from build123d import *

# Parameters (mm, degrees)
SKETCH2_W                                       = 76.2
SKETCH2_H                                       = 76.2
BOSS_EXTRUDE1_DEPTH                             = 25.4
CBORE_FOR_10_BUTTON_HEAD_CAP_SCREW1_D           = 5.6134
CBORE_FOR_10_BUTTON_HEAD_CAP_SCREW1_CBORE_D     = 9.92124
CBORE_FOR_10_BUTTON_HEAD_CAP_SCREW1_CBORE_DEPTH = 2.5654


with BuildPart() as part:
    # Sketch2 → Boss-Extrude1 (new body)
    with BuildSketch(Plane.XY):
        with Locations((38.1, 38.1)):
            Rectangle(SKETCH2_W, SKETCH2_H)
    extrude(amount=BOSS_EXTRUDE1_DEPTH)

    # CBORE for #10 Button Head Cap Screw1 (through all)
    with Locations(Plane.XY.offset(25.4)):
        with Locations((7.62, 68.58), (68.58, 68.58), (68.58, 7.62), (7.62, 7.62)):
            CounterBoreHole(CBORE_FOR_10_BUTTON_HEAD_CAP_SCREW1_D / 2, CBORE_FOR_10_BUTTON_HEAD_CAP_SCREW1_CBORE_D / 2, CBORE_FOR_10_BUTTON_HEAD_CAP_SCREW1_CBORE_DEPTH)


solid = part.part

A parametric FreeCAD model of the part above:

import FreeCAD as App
import Part
import Sketcher
from FreeCAD import Vector
Q = App.Units.Quantity

doc = App.newDocument("Part")
params = doc.addObject("Spreadsheet::Sheet", "Params")
for row, (alias, value) in enumerate([
    ("sketch1_width", "3 in"),
    ("pad1_length", "1 in"),
    ("sketch2_diameter", "0.221 in"),
    ("hole_diameter", "0.221 in"),
    ("hole_cbore_diameter", "0.3906 in"),
    ("hole_cbore_depth", "0.101 in"),
], start=1):
    params.set(f"A{row}", alias)
    params.set(f"B{row}", "=" + value)
    params.setAlias(f"B{row}", alias)

body = doc.addObject("PartDesign::Body", "Body")

sketch1 = doc.addObject("Sketcher::SketchObject", "Sketch")
body.addObject(sketch1)
sketch1.AttachmentSupport = (doc.XY_Plane, [""])
sketch1.MapMode = "FlatFace"
sketch1.addGeometry([
    Part.LineSegment(Vector(0, 76, 0), Vector(0, 0, 0)),
    Part.LineSegment(Vector(0, 0, 0), Vector(76, 0, 0)),
    Part.LineSegment(Vector(76, 0, 0), Vector(76, 76, 0)),
    Part.LineSegment(Vector(76, 76, 0), Vector(0, 76, 0)),
], False)
sketch1.addConstraint([
    Sketcher.Constraint("Coincident", 0, 2, 1, 1),
    Sketcher.Constraint("Coincident", 1, 2, 2, 1),
    Sketcher.Constraint("Coincident", 2, 2, 3, 1),
    Sketcher.Constraint("Coincident", 3, 2, 0, 1),
    Sketcher.Constraint("Vertical", 0),
    Sketcher.Constraint("Horizontal", 1),
    Sketcher.Constraint("Vertical", 2),
    Sketcher.Constraint("Horizontal", 3),
    Sketcher.Constraint("Coincident", 0, 2, -1, 1),
    Sketcher.Constraint("Equal", 3, 0),
    Sketcher.Constraint("DistanceX", 1, 1, 1, 2, Q("3 in")),
])
sketch1.setExpression("Constraints[10]", "Params.sketch1_width")
pad1 = doc.addObject("PartDesign::Pad", "Pad")
body.addObject(pad1)
pad1.Profile = sketch1
pad1.setExpression("Length", "Params.pad1_length")

sketch2 = doc.addObject("Sketcher::SketchObject", "Sketch001")
body.addObject(sketch2)
sketch2.AttachmentSupport = (doc.XY_Plane, [""])
sketch2.MapMode = "FlatFace"
sketch2.AttachmentOffset = App.Placement(Vector(0, 0, 1 * 25.4), App.Rotation())
sketch2.addGeometry([
    Part.Circle(Vector(7.6, 68.6, 0), Vector(0, 0, 1), 2.8),
    Part.Circle(Vector(68.6, 68.6, 0), Vector(0, 0, 1), 2.8),
    Part.Circle(Vector(68.6, 7.6, 0), Vector(0, 0, 1), 2.8),
    Part.Circle(Vector(7.6, 7.6, 0), Vector(0, 0, 1), 2.8),
], False)
sketch2.addConstraint([
    Sketcher.Constraint("Equal", 0, 1),
    Sketcher.Constraint("Equal", 1, 2),
    Sketcher.Constraint("Equal", 2, 3),
    Sketcher.Constraint("Horizontal", 0, 3, 1, 3),
    Sketcher.Constraint("Horizontal", 2, 3, 3, 3),
    Sketcher.Constraint("Vertical", 1, 3, 2, 3),
    Sketcher.Constraint("Vertical", 0, 3, 3, 3),
    Sketcher.Constraint("Diameter", 0, Q("0.221 in")),
    Sketcher.Constraint("DistanceX", -1, 1, 0, 3, Q("0.3 in")),
    Sketcher.Constraint("DistanceY", -1, 1, 0, 3, Q("2.7 in")),
    Sketcher.Constraint("DistanceX", -1, 1, 1, 3, Q("2.7 in")),
    Sketcher.Constraint("DistanceY", -1, 1, 2, 3, Q("0.3 in")),
])
sketch2.setExpression("Constraints[7]", "Params.sketch2_diameter")
doc.recompute()
hole = doc.addObject("PartDesign::Hole", "Hole")
body.addObject(hole)
hole.Profile = sketch2
hole.ThreadType = "None"
hole.setExpression("Diameter", "Params.hole_diameter")
hole.DepthType = "ThroughAll"
hole.HoleCutType = "Counterbore"
hole.setExpression("HoleCutDiameter", "Params.hole_cbore_diameter")
hole.setExpression("HoleCutDepth", "Params.hole_cbore_depth")

doc.recompute()
